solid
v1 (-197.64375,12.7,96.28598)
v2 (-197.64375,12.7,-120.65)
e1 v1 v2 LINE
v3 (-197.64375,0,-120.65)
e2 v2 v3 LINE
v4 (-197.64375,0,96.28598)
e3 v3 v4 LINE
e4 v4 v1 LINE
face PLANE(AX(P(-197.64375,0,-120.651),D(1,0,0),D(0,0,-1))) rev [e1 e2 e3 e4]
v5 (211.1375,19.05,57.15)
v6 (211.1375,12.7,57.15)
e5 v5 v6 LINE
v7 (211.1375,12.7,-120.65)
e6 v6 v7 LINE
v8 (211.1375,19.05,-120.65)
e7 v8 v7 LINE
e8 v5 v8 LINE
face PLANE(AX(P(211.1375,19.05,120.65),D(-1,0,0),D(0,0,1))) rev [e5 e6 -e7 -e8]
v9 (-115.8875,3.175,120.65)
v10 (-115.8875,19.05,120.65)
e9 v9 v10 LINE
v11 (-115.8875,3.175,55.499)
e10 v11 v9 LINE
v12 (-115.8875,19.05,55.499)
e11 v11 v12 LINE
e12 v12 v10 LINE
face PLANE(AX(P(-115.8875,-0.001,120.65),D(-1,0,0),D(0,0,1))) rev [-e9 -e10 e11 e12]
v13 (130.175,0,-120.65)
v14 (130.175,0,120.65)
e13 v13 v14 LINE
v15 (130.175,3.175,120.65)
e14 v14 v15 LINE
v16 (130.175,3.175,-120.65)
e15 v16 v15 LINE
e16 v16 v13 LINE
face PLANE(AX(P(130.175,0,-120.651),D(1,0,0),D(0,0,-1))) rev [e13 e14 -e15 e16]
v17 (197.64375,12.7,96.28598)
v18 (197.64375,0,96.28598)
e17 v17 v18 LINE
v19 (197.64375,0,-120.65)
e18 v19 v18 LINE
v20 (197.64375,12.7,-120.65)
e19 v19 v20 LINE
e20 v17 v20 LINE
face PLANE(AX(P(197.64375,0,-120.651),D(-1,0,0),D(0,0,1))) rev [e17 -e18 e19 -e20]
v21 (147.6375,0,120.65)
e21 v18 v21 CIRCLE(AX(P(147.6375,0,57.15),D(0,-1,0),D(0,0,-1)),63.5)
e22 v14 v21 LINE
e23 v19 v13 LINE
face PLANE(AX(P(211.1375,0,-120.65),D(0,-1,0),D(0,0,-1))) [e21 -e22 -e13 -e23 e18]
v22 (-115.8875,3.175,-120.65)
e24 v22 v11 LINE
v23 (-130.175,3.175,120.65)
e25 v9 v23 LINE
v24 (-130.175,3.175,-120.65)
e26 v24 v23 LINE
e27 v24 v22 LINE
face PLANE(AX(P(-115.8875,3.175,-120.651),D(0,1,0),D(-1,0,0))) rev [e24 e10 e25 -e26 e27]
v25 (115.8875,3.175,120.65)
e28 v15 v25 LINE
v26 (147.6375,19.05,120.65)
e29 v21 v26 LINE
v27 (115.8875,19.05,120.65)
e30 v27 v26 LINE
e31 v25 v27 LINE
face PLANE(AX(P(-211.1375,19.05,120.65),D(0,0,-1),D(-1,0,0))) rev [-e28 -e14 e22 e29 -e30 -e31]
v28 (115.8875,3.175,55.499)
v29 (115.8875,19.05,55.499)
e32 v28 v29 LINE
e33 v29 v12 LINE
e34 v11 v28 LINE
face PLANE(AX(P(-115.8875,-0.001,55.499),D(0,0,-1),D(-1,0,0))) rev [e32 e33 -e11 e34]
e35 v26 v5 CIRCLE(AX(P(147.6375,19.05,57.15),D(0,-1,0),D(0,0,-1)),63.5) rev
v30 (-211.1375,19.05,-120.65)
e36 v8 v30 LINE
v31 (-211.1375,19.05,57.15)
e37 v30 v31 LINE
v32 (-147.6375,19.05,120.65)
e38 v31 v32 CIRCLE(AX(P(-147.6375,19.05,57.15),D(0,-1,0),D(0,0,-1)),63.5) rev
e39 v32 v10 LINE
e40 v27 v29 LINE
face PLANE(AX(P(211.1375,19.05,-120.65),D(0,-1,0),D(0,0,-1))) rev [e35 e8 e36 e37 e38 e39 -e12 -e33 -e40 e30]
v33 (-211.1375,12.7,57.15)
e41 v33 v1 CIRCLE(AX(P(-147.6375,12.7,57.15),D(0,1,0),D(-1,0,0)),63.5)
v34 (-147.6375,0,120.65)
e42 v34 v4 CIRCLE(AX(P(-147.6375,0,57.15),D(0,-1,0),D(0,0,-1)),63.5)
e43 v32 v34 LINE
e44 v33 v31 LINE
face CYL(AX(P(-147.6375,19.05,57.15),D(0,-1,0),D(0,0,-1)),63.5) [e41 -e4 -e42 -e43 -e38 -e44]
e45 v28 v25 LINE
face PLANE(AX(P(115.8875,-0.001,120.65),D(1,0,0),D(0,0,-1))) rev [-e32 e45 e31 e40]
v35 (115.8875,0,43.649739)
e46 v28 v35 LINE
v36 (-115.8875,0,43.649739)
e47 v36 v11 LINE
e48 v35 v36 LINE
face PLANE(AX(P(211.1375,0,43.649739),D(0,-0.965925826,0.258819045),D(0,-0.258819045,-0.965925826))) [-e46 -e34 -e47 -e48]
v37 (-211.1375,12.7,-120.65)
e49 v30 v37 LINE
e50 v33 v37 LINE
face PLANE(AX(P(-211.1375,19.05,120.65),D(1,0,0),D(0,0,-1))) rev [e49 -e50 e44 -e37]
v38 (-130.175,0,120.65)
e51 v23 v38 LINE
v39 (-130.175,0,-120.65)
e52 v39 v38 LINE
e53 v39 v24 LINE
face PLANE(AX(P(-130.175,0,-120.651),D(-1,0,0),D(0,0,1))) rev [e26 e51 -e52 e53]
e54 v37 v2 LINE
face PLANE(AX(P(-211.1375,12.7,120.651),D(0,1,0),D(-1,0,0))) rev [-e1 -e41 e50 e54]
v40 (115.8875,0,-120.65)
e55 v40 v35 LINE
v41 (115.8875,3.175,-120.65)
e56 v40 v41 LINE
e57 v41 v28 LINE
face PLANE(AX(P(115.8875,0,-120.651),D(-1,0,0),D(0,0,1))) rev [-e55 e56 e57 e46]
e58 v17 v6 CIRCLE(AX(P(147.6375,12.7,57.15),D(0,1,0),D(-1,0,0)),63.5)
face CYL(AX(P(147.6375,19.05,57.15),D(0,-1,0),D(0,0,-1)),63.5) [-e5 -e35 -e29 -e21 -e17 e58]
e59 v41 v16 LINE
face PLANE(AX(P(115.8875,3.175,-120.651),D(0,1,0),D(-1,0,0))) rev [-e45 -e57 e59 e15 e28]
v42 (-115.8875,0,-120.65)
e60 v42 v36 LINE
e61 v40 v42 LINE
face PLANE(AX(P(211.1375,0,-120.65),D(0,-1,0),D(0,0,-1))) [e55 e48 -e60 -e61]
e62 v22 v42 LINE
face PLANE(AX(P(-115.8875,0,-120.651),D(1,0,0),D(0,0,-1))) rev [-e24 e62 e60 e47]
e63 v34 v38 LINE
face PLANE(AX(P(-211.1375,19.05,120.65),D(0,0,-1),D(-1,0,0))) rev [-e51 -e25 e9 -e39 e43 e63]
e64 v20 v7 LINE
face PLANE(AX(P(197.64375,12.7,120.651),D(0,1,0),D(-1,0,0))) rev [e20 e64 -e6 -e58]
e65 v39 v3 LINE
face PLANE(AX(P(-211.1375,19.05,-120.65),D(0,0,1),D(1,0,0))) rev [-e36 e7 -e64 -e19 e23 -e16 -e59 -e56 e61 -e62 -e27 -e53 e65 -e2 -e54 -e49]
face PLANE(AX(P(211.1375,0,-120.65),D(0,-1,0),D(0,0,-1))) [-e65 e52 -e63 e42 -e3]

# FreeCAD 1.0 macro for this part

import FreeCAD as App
import Part
import Sketcher
Q = App.Units.Quantity


def edges_at(feature, points):
    """Names of the edges that pass closest to the given points."""
    edges = feature.Shape.Edges
    near = lambda p: min(range(len(edges)), key=lambda i: edges[i].distToShape(Part.Vertex(*p))[0])
    return sorted({f"Edge{near(p) + 1}" for p in points})

doc = App.newDocument("Part")
body = doc.addObject("PartDesign::Body", "Body")

# Sketch on XZ plane
sketch1 = body.newObject("Sketcher::SketchObject", "Sketch")
sketch1.AttachmentSupport = (doc.getObject("XZ_Plane"), [""])
sketch1.MapMode = "FlatFace"
sketch1.addGeometry([
    Part.LineSegment(App.Vector(-211, -121, 0), App.Vector(-211, 121, 0)),
    Part.LineSegment(App.Vector(-211, 121, 0), App.Vector(211, 121, 0)),
    Part.LineSegment(App.Vector(211, 121, 0), App.Vector(211, -121, 0)),
    Part.LineSegment(App.Vector(211, -121, 0), App.Vector(-211, -121, 0)),
], False)
sketch1.addConstraint([
    Sketcher.Constraint("Coincident", 0, 2, 1, 1),
    Sketcher.Constraint("Coincident", 1, 2, 2, 1),
    Sketcher.Constraint("Coincident", 2, 2, 3, 1),
    Sketcher.Constraint("Coincident", 3, 2, 0, 1),
    Sketcher.Constraint("Vertical", 0),
    Sketcher.Constraint("Horizontal", 1),
    Sketcher.Constraint("Vertical", 2),
    Sketcher.Constraint("Horizontal", 3),
    Sketcher.Constraint("Symmetric", 0, 2, 2, 2, -1, 1),
    Sketcher.Constraint("DistanceY", 0, 1, 0, 2, Q("9.5 in")),
    Sketcher.Constraint("DistanceX", 1, 1, 1, 2, Q("16.625 in")),
])
pad1 = body.newObject("PartDesign::Pad", "Pad")
pad1.Profile = sketch1
pad1.Length = Q("0.75 in")
pad1.Reversed = True

# Sketch on XZ plane
sketch2 = body.newObject("Sketcher::SketchObject", "Sketch001")
sketch2.AttachmentSupport = (doc.getObject("XZ_Plane"), [""])
sketch2.MapMode = "FlatFace"
sketch2.AttachmentOffset = App.Placement(App.Vector(0, 0, -0.75 * 25.4), App.Rotation())
sketch2.addGeometry([
    Part.LineSegment(App.Vector(-116, 55, 0), App.Vector(-116, 121, 0)),
    Part.LineSegment(App.Vector(-116, 121, 0), App.Vector(116, 121, 0)),
    Part.LineSegment(App.Vector(116, 121, 0), App.Vector(116, 55, 0)),
    Part.LineSegment(App.Vector(116, 55, 0), App.Vector(-116, 55, 0)),
], False)
sketch2.addConstraint([
    Sketcher.Constraint("Coincident", 0, 2, 1, 1),
    Sketcher.Constraint("Coincident", 1, 2, 2, 1),
    Sketcher.Constraint("Coincident", 2, 2, 3, 1),
    Sketcher.Constraint("Coincident", 3, 2, 0, 1),
    Sketcher.Constraint("Vertical", 0),
    Sketcher.Constraint("Horizontal", 1),
    Sketcher.Constraint("Vertical", 2),
    Sketcher.Constraint("Horizontal", 3),
    Sketcher.Constraint("DistanceX", 1, 1, 1, 2, Q("9.125 in")),
    Sketcher.Constraint("DistanceY", 0, 1, 0, 2, Q("2.565 in")),
    Sketcher.Constraint("DistanceY", -1, 1, 0, 2, Q("4.75 in")),
    Sketcher.Constraint("DistanceX", 0, 2, -1, 1, Q("4.5625 in")),
])
pocket1 = body.newObject("PartDesign::Pocket", "Pocket")
pocket1.Profile = sketch2
pocket1.Type = "UpToFirst"
pocket1.Reversed = True

# Sketch on XY plane
sketch3 = body.newObject("Sketcher::SketchObject", "Sketch002")
sketch3.AttachmentSupport = (doc.getObject("XY_Plane"), [""])
sketch3.MapMode = "FlatFace"
sketch3.AttachmentOffset = App.Placement(App.Vector(0, 0, 4.75 * 25.4), App.Rotation())
sketch3.addGeometry([
    Part.LineSegment(App.Vector(-130.2, 3.2, 0), App.Vector(-130.2, 0, 0)),
    Part.LineSegment(App.Vector(-130.2, 0, 0), App.Vector(-115.9, 0, 0)),
    Part.LineSegment(App.Vector(-115.9, 0, 0), App.Vector(-115.9, 3.2, 0)),
    Part.LineSegment(App.Vector(-115.9, 3.2, 0), App.Vector(-130.2, 3.2, 0)),
], False)
sketch3.addConstraint([
    Sketcher.Constraint("Coincident", 0, 2, 1, 1),
    Sketcher.Constraint("Coincident", 1, 2, 2, 1),
    Sketcher.Constraint("Coincident", 2, 2, 3, 1),
    Sketcher.Constraint("Coincident", 3, 2, 0, 1),
    Sketcher.Constraint("Vertical", 0),
    Sketcher.Constraint("Horizontal", 1),
    Sketcher.Constraint("Vertical", 2),
    Sketcher.Constraint("Horizontal", 3),
    Sketcher.Constraint("PointOnObject", 0, 2, -1),
    Sketcher.Constraint("DistanceX", 1, 1, 1, 2, Q("0.5625 in")),
    Sketcher.Constraint("DistanceY", 0, 2, 0, 1, Q("0.125 in")),
    Sketcher.Constraint("DistanceX", 0, 2, -1, 1, Q("5.125 in")),
])
pocket2 = body.newObject("PartDesign::Pocket", "Pocket001")
pocket2.Profile = sketch3
pocket2.Type = "UpToFirst"

# Sketch on XY plane
sketch4 = body.newObject("Sketcher::SketchObject", "Sketch003")
sketch4.AttachmentSupport = (doc.getObject("XY_Plane"), [""])
sketch4.MapMode = "FlatFace"
sketch4.AttachmentOffset = App.Placement(App.Vector(0, 0, 4.75 * 25.4), App.Rotation())
sketch4.addGeometry([
    Part.LineSegment(App.Vector(115.9, 3.2, 0), App.Vector(115.9, 0, 0)),
    Part.LineSegment(App.Vector(115.9, 0, 0), App.Vector(130.2, 0, 0)),
    Part.LineSegment(App.Vector(130.2, 0, 0), App.Vector(130.2, 3.2, 0)),
    Part.LineSegment(App.Vector(130.2, 3.2, 0), App.Vector(115.9, 3.2, 0)),
], False)
sketch4.addConstraint([
    Sketcher.Constraint("Coincident", 0, 2, 1, 1),
    Sketcher.Constraint("Coincident", 1, 2, 2, 1),
    Sketcher.Constraint("Coincident", 2, 2, 3, 1),
    Sketcher.Constraint("Coincident", 3, 2, 0, 1),
    Sketcher.Constraint("Vertical", 0),
    Sketcher.Constraint("Horizontal", 1),
    Sketcher.Constraint("Vertical", 2),
    Sketcher.Constraint("Horizontal", 3),
    Sketcher.Constraint("PointOnObject", 0, 2, -1),
    Sketcher.Constraint("DistanceX", 1, 1, 1, 2, Q("0.5625 in")),
    Sketcher.Constraint("DistanceY", 0, 2, 0, 1, Q("0.125 in")),
    Sketcher.Constraint("DistanceX", -1, 1, 0, 2, Q("4.5625 in")),
])
pocket3 = body.newObject("PartDesign::Pocket", "Pocket002")
pocket3.Profile = sketch4
pocket3.Type = "UpToFirst"

# Sketch on XY plane
sketch5 = body.newObject("Sketcher::SketchObject", "Sketch004")
sketch5.AttachmentSupport = (doc.getObject("XY_Plane"), [""])
sketch5.MapMode = "FlatFace"
sketch5.AttachmentOffset = App.Placement(App.Vector(0, 0, 4.75 * 25.4), App.Rotation())
sketch5.addGeometry([
    Part.LineSegment(App.Vector(-211.1, 3.2, 0), App.Vector(-211.1, 0, 0)),
    Part.LineSegment(App.Vector(-211.1, 0, 0), App.Vector(-197.6, 0, 0)),
    Part.LineSegment(App.Vector(-197.6, 0, 0), App.Vector(-197.6, 3.2, 0)),
    Part.LineSegment(App.Vector(-197.6, 3.2, 0), App.Vector(-211.1, 3.2, 0)),
], False)
sketch5.addConstraint([
    Sketcher.Constraint("Coincident", 0, 2, 1, 1),
    Sketcher.Constraint("Coincident", 1, 2, 2, 1),
    Sketcher.Constraint("Coincident", 2, 2, 3, 1),
    Sketcher.Constraint("Coincident", 3, 2, 0, 1),
    Sketcher.Constraint("Vertical", 0),
    Sketcher.Constraint("Horizontal", 1),
    Sketcher.Constraint("Vertical", 2),
    Sketcher.Constraint("Horizontal", 3),
    Sketcher.Constraint("PointOnObject", 0, 2, -1),
    Sketcher.Constraint("DistanceX", 1, 1, 1, 2, Q("0.53125 in")),
    Sketcher.Constraint("DistanceY", 0, 2, 0, 1, Q("0.125 in")),
    Sketcher.Constraint("DistanceX", 0, 2, -1, 1, Q("8.3125 in")),
])
pocket4 = body.newObject("PartDesign::Pocket", "Pocket003")
pocket4.Profile = sketch5
pocket4.Type = "UpToFirst"

# Sketch on XY plane
sketch6 = body.newObject("Sketcher::SketchObject", "Sketch005")
sketch6.AttachmentSupport = (doc.getObject("XY_Plane"), [""])
sketch6.MapMode = "FlatFace"
sketch6.AttachmentOffset = App.Placement(App.Vector(0, 0, 4.75 * 25.4), App.Rotation())
sketch6.addGeometry([
    Part.LineSegment(App.Vector(197.6, 3.2, 0), App.Vector(197.6, 0, 0)),
    Part.LineSegment(App.Vector(197.6, 0, 0), App.Vector(211.1, 0, 0)),
    Part.LineSegment(App.Vector(211.1, 0, 0), App.Vector(211.1, 3.2, 0)),
    Part.LineSegment(App.Vector(211.1, 3.2, 0), App.Vector(197.6, 3.2, 0)),
], False)
sketch6.addConstraint([
    Sketcher.Constraint("Coincident", 0, 2, 1, 1),
    Sketcher.Constraint("Coincident", 1, 2, 2, 1),
    Sketcher.Constraint("Coincident", 2, 2, 3, 1),
    Sketcher.Constraint("Coincident", 3, 2, 0, 1),
    Sketcher.Constraint("Vertical", 0),
    Sketcher.Constraint("Horizontal", 1),
    Sketcher.Constraint("Vertical", 2),
    Sketcher.Constraint("Horizontal", 3),
    Sketcher.Constraint("PointOnObject", 0, 2, -1),
    Sketcher.Constraint("DistanceX", 1, 1, 1, 2, Q("0.53125 in")),
    Sketcher.Constraint("DistanceY", 0, 2, 0, 1, Q("0.125 in")),
    Sketcher.Constraint("DistanceX", -1, 1, 0, 2, Q("7.78125 in")),
])
pocket5 = body.newObject("PartDesign::Pocket", "Pocket004")
pocket5.Profile = sketch6
pocket5.Type = "UpToFirst"
doc.recompute()

fillet = body.newObject("PartDesign::Fillet", "Fillet")
fillet.Base = (pocket5, edges_at(pocket5, [(211.137, 11.113, 120.65), (-211.137, 11.113, 120.65)]))
fillet.Radius = Q("2.5 in")

# Sketch on XY plane
sketch7 = body.newObject("Sketcher::SketchObject", "Sketch006")
sketch7.AttachmentSupport = (doc.getObject("XY_Plane"), [""])
sketch7.MapMode = "FlatFace"
sketch7.AttachmentOffset = App.Placement(App.Vector(0, 0, -4.75 * 25.4), App.Rotation())
sketch7.addGeometry([
    Part.LineSegment(App.Vector(211, 13, 0), App.Vector(211, 3, 0)),
    Part.LineSegment(App.Vector(211, 3, 0), App.Vector(198, 3, 0)),
    Part.LineSegment(App.Vector(198, 3, 0), App.Vector(198, 13, 0)),
    Part.LineSegment(App.Vector(198, 13, 0), App.Vector(211, 13, 0)),
], False)
sketch7.addConstraint([
    Sketcher.Constraint("Coincident", 0, 2, 1, 1),
    Sketcher.Constraint("Coincident", 1, 2, 2, 1),
    Sketcher.Constraint("Coincident", 2, 2, 3, 1),
    Sketcher.Constraint("Coincident", 3, 2, 0, 1),
    Sketcher.Constraint("Vertical", 0),
    Sketcher.Constraint("Horizontal", 1),
    Sketcher.Constraint("Vertical", 2),
    Sketcher.Constraint("Horizontal", 3),
    Sketcher.Constraint("DistanceY", -1, 1, 2, 2, Q("0.5 in")),
    Sketcher.Constraint("DistanceX", 1, 2, 1, 1, Q("0.53125 in")),
    Sketcher.Constraint("DistanceY", 0, 2, 0, 1, Q("0.375 in")),
    Sketcher.Constraint("DistanceX", -1, 1, 0, 2, Q("8.3125 in")),
])
pocket6 = body.newObject("PartDesign::Pocket", "Pocket005")
pocket6.Profile = sketch7
pocket6.Type = "UpToFirst"
pocket6.Reversed = True

# Sketch on XY plane
sketch8 = body.newObject("Sketcher::SketchObject", "Sketch007")
sketch8.AttachmentSupport = (doc.getObject("XY_Plane"), [""])
sketch8.MapMode = "FlatFace"
sketch8.AttachmentOffset = App.Placement(App.Vector(0, 0, -4.75 * 25.4), App.Rotation())
sketch8.addGeometry([
    Part.LineSegment(App.Vector(-198, 13, 0), App.Vector(-198, 3, 0)),
    Part.LineSegment(App.Vector(-198, 3, 0), App.Vector(-211, 3, 0)),
    Part.LineSegment(App.Vector(-211, 3, 0), App.Vector(-211, 13, 0)),
    Part.LineSegment(App.Vector(-211, 13, 0), App.Vector(-198, 13, 0)),
], False)
sketch8.addConstraint([
    Sketcher.Constraint("Coincident", 0, 2, 1, 1),
    Sketcher.Constraint("Coincident", 1, 2, 2, 1),
    Sketcher.Constraint("Coincident", 2, 2, 3, 1),
    Sketcher.Constraint("Coincident", 3, 2, 0, 1),
    Sketcher.Constraint("Vertical", 0),
    Sketcher.Constraint("Horizontal", 1),
    Sketcher.Constraint("Vertical", 2),
    Sketcher.Constraint("Horizontal", 3),
    Sketcher.Constraint("DistanceY", -1, 1, 2, 2, Q("0.5 in")),
    Sketcher.Constraint("DistanceX", 1, 2, 1, 1, Q("0.53125 in")),
    Sketcher.Constraint("DistanceY", 0, 2, 0, 1, Q("0.375 in")),
    Sketcher.Constraint("DistanceX", 0, 2, -1, 1, Q("7.78125 in")),
])
pocket7 = body.newObject("PartDesign::Pocket", "Pocket006")
pocket7.Profile = sketch8
pocket7.Type = "UpToFirst"
pocket7.Reversed = True
doc.recompute()

chamfer = body.newObject("PartDesign::Chamfer", "Chamfer")
chamfer.Base = (pocket7, edges_at(pocket7, [(0, 0, 55.499)]))
chamfer.ChamferType = "Two distances"
chamfer.Size = Q("0.125 in")
chamfer.Size2 = 11.849261

doc.recompute()
